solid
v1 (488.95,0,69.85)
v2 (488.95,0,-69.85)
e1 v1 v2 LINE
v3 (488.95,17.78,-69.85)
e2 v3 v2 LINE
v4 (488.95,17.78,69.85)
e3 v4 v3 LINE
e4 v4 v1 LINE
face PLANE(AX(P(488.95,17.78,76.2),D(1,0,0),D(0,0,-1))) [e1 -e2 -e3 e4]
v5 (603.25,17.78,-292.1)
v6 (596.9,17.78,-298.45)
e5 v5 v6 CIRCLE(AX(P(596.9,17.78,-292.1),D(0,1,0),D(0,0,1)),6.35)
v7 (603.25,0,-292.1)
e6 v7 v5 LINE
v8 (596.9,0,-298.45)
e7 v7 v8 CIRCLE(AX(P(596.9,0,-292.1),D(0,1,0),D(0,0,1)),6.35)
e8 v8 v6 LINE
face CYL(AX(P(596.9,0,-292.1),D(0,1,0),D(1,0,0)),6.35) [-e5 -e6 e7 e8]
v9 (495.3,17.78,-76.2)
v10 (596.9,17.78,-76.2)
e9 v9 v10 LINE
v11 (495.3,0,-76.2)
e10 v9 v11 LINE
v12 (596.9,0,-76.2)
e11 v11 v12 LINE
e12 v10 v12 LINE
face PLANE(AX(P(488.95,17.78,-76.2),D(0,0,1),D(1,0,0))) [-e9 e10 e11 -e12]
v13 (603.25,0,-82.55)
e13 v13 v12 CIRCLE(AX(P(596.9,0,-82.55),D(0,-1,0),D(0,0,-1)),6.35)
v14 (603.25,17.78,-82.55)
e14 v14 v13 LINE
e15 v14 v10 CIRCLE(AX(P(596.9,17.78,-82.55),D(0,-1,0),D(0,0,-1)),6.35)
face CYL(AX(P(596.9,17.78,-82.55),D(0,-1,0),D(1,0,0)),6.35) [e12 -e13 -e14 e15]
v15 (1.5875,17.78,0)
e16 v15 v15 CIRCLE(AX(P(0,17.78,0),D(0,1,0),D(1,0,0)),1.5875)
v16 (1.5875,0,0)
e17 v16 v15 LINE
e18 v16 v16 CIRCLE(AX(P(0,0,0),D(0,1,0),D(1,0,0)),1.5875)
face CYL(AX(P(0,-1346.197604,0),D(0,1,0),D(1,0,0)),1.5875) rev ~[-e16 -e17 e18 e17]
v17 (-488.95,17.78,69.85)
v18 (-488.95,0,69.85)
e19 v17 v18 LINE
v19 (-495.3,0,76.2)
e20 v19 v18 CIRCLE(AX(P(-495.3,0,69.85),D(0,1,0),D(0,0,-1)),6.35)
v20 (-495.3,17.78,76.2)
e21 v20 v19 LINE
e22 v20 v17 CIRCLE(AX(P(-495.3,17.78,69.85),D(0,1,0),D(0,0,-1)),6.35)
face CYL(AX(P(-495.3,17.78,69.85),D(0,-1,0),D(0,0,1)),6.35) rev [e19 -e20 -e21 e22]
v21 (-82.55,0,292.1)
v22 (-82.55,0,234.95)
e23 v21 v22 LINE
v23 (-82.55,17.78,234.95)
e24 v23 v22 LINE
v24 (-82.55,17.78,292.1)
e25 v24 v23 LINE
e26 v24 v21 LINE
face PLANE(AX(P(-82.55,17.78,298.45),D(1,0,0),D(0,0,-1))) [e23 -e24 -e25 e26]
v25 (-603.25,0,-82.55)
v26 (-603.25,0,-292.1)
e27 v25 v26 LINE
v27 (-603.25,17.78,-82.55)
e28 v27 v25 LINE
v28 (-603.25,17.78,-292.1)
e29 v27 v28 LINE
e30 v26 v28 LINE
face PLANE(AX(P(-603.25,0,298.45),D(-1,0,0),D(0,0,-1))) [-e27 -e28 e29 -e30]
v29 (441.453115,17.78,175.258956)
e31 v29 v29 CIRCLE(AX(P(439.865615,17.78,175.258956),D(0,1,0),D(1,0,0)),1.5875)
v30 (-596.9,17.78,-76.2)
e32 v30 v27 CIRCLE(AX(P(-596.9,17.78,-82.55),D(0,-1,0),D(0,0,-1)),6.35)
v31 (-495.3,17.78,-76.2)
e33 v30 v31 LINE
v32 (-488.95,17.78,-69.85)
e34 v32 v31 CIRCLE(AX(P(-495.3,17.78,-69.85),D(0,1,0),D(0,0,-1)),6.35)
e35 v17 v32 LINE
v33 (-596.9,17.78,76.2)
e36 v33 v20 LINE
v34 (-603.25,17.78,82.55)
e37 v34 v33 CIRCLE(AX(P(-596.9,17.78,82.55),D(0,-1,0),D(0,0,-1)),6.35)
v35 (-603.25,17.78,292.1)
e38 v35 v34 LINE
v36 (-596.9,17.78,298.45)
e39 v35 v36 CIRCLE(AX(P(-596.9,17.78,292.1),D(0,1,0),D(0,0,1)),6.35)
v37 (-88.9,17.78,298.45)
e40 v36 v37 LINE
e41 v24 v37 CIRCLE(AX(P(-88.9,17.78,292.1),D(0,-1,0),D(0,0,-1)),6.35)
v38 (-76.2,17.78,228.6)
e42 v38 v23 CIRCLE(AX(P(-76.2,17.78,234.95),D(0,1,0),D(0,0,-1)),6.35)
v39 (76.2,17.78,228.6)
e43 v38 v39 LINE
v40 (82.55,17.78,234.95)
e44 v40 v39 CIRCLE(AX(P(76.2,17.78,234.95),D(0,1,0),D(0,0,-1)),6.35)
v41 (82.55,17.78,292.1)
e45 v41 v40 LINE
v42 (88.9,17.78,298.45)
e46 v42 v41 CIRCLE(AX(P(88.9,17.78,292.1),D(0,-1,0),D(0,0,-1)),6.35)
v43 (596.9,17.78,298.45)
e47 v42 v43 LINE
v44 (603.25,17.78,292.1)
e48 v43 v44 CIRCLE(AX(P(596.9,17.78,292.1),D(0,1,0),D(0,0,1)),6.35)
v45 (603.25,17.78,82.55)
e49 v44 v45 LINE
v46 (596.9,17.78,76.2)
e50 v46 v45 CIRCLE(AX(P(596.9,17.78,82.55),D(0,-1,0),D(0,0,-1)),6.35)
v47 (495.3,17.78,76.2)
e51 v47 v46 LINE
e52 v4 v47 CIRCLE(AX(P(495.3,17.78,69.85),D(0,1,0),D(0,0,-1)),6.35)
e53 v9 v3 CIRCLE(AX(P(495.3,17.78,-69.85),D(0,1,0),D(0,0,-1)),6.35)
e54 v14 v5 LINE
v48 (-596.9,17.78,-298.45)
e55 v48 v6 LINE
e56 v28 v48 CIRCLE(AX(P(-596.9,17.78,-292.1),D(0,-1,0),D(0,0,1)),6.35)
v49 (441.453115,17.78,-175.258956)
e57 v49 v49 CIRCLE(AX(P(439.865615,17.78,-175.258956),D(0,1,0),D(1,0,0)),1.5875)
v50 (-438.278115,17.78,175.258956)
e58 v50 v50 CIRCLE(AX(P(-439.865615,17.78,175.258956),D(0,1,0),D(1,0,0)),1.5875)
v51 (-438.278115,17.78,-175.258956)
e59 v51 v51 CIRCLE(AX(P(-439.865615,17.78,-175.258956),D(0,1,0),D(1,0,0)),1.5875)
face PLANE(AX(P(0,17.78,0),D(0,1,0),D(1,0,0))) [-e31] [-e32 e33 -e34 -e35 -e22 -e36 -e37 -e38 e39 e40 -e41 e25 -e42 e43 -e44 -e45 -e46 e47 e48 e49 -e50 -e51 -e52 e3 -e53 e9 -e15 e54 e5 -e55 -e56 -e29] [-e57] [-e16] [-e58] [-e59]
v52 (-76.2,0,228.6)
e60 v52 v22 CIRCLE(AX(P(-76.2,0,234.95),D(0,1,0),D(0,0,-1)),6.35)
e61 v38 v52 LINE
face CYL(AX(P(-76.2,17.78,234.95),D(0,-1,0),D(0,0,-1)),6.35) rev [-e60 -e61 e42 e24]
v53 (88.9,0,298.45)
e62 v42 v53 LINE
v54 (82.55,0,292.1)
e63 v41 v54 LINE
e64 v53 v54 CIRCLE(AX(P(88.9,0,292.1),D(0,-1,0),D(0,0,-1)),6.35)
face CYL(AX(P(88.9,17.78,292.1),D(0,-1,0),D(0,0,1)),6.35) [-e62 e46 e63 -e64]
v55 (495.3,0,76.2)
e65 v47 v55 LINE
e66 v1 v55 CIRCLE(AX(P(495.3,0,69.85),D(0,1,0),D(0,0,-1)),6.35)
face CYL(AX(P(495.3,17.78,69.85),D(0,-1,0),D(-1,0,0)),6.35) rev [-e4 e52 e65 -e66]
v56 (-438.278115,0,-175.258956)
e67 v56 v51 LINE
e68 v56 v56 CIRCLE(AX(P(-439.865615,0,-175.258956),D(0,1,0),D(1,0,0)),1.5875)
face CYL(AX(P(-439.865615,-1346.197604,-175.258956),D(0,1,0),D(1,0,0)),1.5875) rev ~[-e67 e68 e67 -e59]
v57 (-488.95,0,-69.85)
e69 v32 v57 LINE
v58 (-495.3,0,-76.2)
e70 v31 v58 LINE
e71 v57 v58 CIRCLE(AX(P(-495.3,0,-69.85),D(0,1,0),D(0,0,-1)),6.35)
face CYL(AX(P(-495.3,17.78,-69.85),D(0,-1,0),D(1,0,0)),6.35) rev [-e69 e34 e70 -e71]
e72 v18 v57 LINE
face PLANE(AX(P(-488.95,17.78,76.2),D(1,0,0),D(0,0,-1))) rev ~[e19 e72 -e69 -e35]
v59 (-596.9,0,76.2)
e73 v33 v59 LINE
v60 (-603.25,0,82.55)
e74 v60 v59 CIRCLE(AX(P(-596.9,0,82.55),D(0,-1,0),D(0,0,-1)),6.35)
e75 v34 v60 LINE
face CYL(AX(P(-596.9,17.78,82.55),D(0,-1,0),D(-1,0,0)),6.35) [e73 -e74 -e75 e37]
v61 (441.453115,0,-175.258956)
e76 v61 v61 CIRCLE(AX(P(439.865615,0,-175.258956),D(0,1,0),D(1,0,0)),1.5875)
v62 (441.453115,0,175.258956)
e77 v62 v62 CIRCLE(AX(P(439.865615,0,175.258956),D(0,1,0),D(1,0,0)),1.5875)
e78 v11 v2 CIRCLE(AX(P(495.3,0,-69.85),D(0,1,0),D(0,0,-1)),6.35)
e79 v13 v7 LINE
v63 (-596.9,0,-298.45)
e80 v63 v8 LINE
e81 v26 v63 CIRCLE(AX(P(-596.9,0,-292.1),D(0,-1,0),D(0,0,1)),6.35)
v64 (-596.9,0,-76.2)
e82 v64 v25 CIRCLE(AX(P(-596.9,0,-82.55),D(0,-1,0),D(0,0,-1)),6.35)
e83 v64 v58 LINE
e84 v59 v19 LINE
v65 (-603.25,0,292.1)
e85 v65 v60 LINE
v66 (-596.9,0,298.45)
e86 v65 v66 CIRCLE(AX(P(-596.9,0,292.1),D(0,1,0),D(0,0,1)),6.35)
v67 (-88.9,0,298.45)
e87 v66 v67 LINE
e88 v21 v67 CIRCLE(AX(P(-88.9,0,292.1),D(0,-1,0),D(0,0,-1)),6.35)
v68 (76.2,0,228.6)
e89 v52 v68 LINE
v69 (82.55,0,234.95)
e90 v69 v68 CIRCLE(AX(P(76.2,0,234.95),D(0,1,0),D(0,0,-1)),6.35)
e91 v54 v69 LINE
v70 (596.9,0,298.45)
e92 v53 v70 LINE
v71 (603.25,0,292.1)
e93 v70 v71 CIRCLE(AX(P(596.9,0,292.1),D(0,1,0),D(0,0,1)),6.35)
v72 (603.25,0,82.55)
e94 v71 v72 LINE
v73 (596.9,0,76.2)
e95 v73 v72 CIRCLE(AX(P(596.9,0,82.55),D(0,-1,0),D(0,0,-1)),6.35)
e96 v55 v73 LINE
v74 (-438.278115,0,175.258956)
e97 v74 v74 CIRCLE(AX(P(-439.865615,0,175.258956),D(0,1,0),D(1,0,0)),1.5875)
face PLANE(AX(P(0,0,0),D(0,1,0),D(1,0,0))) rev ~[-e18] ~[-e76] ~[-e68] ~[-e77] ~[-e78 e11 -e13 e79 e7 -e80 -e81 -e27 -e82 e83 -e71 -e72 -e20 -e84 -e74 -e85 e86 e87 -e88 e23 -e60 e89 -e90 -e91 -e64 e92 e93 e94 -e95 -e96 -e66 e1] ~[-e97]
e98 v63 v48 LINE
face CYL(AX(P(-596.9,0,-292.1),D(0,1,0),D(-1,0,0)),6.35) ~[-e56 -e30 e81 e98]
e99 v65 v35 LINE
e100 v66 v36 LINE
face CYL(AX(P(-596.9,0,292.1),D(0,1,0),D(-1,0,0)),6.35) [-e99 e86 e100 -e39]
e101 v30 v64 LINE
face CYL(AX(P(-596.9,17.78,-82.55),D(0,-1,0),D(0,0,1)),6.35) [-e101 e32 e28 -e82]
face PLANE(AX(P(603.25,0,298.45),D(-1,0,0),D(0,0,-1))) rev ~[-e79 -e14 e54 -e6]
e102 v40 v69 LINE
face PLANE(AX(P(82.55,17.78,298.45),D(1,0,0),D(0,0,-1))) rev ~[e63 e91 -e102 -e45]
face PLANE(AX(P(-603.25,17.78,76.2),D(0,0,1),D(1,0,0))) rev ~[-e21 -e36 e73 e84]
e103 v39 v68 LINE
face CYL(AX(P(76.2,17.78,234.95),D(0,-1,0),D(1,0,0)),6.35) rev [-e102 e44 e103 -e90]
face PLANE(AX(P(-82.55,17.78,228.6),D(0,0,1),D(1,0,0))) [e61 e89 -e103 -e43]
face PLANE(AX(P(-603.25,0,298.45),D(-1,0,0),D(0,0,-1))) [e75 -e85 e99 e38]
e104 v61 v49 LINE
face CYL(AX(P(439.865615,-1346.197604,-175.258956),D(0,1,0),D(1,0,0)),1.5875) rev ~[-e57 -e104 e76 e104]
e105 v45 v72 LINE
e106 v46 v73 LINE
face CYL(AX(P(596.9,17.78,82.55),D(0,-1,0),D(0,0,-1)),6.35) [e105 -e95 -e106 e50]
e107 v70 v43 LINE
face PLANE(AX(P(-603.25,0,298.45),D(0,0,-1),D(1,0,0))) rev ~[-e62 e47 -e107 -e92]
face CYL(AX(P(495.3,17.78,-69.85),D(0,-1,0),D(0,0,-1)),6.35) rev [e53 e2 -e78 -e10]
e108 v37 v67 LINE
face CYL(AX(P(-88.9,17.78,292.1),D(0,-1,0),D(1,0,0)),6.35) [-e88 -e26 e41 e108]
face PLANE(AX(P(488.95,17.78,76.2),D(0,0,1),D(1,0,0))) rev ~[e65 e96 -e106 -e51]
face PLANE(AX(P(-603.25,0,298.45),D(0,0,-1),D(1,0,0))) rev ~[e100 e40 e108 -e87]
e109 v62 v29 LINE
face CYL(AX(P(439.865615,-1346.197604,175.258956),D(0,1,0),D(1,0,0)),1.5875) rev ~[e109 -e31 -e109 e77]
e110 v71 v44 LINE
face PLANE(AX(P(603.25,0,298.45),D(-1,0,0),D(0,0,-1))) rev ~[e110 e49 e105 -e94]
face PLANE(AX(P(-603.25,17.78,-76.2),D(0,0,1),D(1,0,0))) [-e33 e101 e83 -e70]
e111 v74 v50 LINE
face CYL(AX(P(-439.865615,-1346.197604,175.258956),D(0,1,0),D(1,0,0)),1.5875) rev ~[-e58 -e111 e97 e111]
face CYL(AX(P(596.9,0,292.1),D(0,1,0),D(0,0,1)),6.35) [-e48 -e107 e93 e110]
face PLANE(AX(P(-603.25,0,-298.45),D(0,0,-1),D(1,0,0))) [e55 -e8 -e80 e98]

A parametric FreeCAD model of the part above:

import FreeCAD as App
import Part
import Sketcher
Q = App.Units.Quantity


def edges_at(feature, points):
    """Names of the edges that pass closest to the given points."""
    edges = feature.Shape.Edges
    near = lambda p: min(range(len(edges)), key=lambda i: edges[i].distToShape(Part.Vertex(*p))[0])
    return sorted({f"Edge{near(p) + 1}" for p in points})

doc = App.newDocument("Part")
body = doc.addObject("PartDesign::Body", "Body")

# Sketch on XZ plane
sketch1 = body.newObject("Sketcher::SketchObject", "Sketch")
sketch1.AttachmentSupport = (doc.getObject("XZ_Plane"), [""])
sketch1.MapMode = "FlatFace"
sketch1.addGeometry(Part.LineSegment(App.Vector(-603, -298, 0), App.Vector(-603, 298, 0)), False)
sketch1.addGeometry(Part.LineSegment(App.Vector(-603, 298, 0), App.Vector(603, 298, 0)), False)
sketch1.addGeometry(Part.LineSegment(App.Vector(603, 298, 0), App.Vector(603, -298, 0)), False)
sketch1.addGeometry(Part.LineSegment(App.Vector(603, -298, 0), App.Vector(-603, -298, 0)), False)
sketch1.addConstraint(Sketcher.Constraint("Coincident", 0, 2, 1, 1))
sketch1.addConstraint(Sketcher.Constraint("Coincident", 1, 2, 2, 1))
sketch1.addConstraint(Sketcher.Constraint("Coincident", 2, 2, 3, 1))
sketch1.addConstraint(Sketcher.Constraint("Coincident", 3, 2, 0, 1))
sketch1.addConstraint(Sketcher.Constraint("Vertical", 0))
sketch1.addConstraint(Sketcher.Constraint("Horizontal", 1))
sketch1.addConstraint(Sketcher.Constraint("Vertical", 2))
sketch1.addConstraint(Sketcher.Constraint("Horizontal", 3))
sketch1.addConstraint(Sketcher.Constraint("Symmetric", 0, 2, 2, 2, -1, 1))
sketch1.addConstraint(Sketcher.Constraint("DistanceX", 1, 1, 1, 2, Q("47.5 in")))
sketch1.addConstraint(Sketcher.Constraint("DistanceY", 0, 1, 0, 2, Q("23.5 in")))
pad1 = body.newObject("PartDesign::Pad", "Pad")
pad1.Profile = sketch1
pad1.Length = Q("0.7 in")
pad1.Reversed = True
doc.recompute()

fillet = body.newObject("PartDesign::Fillet", "Fillet")
fillet.Base = (pad1, edges_at(pad1, [
    (603.25, 8.89, 298.45),
    (-603.25, 8.89, 298.45),
    (-603.25, 8.89, -298.45),
    (603.25, 8.89, -298.45),
]))
fillet.Radius = Q("0.25 in")

# Sketch on XZ plane
sketch2 = body.newObject("Sketcher::SketchObject", "Sketch001")
sketch2.AttachmentSupport = (doc.getObject("XZ_Plane"), [""])
sketch2.MapMode = "FlatFace"
sketch2.AttachmentOffset = App.Placement(App.Vector(0, 0, -0.7 * 25.4), App.Rotation())
sketch2.addGeometry(Part.LineSegment(App.Vector(-83, 229, 0), App.Vector(-83, 298, 0)), False)
sketch2.addGeometry(Part.LineSegment(App.Vector(-83, 298, 0), App.Vector(83, 298, 0)), False)
sketch2.addGeometry(Part.LineSegment(App.Vector(83, 298, 0), App.Vector(83, 229, 0)), False)
sketch2.addGeometry(Part.LineSegment(App.Vector(83, 229, 0), App.Vector(-83, 229, 0)), False)
sketch2.addGeometry(Part.LineSegment(App.Vector(-603, -76, 0), App.Vector(-603, 76, 0)), False)
sketch2.addGeometry(Part.LineSegment(App.Vector(-603, 76, 0), App.Vector(-489, 76, 0)), False)
sketch2.addGeometry(Part.LineSegment(App.Vector(-489, 76, 0), App.Vector(-489, -76, 0)), False)
sketch2.addGeometry(Part.LineSegment(App.Vector(-489, -76, 0), App.Vector(-603, -76, 0)), False)
sketch2.addGeometry(Part.LineSegment(App.Vector(489, -76, 0), App.Vector(489, 76, 0)), False)
sketch2.addGeometry(Part.LineSegment(App.Vector(489, 76, 0), App.Vector(603, 76, 0)), False)
sketch2.addGeometry(Part.LineSegment(App.Vector(603, 76, 0), App.Vector(603, -76, 0)), False)
sketch2.addGeometry(Part.LineSegment(App.Vector(603, -76, 0), App.Vector(489, -76, 0)), False)
sketch2.addConstraint(Sketcher.Constraint("Coincident", 0, 2, 1, 1))
sketch2.addConstraint(Sketcher.Constraint("Coincident", 1, 2, 2, 1))
sketch2.addConstraint(Sketcher.Constraint("Coincident", 2, 2, 3, 1))
sketch2.addConstraint(Sketcher.Constraint("Coincident", 3, 2, 0, 1))
sketch2.addConstraint(Sketcher.Constraint("Coincident", 4, 2, 5, 1))
sketch2.addConstraint(Sketcher.Constraint("Coincident", 5, 2, 6, 1))
sketch2.addConstraint(Sketcher.Constraint("Coincident", 6, 2, 7, 1))
sketch2.addConstraint(Sketcher.Constraint("Coincident", 7, 2, 4, 1))
sketch2.addConstraint(Sketcher.Constraint("Coincident", 8, 2, 9, 1))
sketch2.addConstraint(Sketcher.Constraint("Coincident", 9, 2, 10, 1))
sketch2.addConstraint(Sketcher.Constraint("Coincident", 10, 2, 11, 1))
sketch2.addConstraint(Sketcher.Constraint("Coincident", 11, 2, 8, 1))
sketch2.addConstraint(Sketcher.Constraint("Vertical", 0))
sketch2.addConstraint(Sketcher.Constraint("Horizontal", 1))
sketch2.addConstraint(Sketcher.Constraint("Vertical", 2))
sketch2.addConstraint(Sketcher.Constraint("Horizontal", 3))
sketch2.addConstraint(Sketcher.Constraint("Vertical", 4))
sketch2.addConstraint(Sketcher.Constraint("Horizontal", 5))
sketch2.addConstraint(Sketcher.Constraint("Vertical", 6))
sketch2.addConstraint(Sketcher.Constraint("Horizontal", 7))
sketch2.addConstraint(Sketcher.Constraint("Vertical", 8))
sketch2.addConstraint(Sketcher.Constraint("Horizontal", 9))
sketch2.addConstraint(Sketcher.Constraint("Vertical", 10))
sketch2.addConstraint(Sketcher.Constraint("Horizontal", 11))
sketch2.addConstraint(Sketcher.Constraint("Symmetric", 6, 2, 8, 2, -1, 1))
sketch2.addConstraint(Sketcher.Constraint("Symmetric", 4, 2, 10, 2, -1, 1))
sketch2.addConstraint(Sketcher.Constraint("Horizontal", 5, 2, 8, 2))
sketch2.addConstraint(Sketcher.Constraint("DistanceY", 4, 1, 4, 2, Q("6 in")))
sketch2.addConstraint(Sketcher.Constraint("DistanceX", 1, 1, 1, 2, Q("6.5 in")))
sketch2.addConstraint(Sketcher.Constraint("DistanceX", 5, 1, 5, 2, Q("4.5 in")))
sketch2.addConstraint(Sketcher.Constraint("DistanceY", -1, 1, 2, 2, Q("9 in")))
sketch2.addConstraint(Sketcher.Constraint("DistanceX", 4, 2, 2, 2, Q("27 in")))
sketch2.addConstraint(Sketcher.Constraint("DistanceX", 2, 2, 8, 2, Q("16 in")))
sketch2.addConstraint(Sketcher.Constraint("DistanceY", 0, 1, 0, 2, Q("2.75 in")))
pocket1 = body.newObject("PartDesign::Pocket", "Pocket")
pocket1.Profile = sketch2
pocket1.Type = "ThroughAll"
pocket1.Reversed = True
doc.recompute()

fillet2 = body.newObject("PartDesign::Fillet", "Fillet001")
fillet2.Base = (pocket1, edges_at(pocket1, [
    (82.55, 8.89, 228.6),
    (82.55, 8.89, 298.45),
    (-82.55, 8.89, 298.45),
    (-82.55, 8.89, 228.6),
    (-603.25, 8.89, 76.2),
    (-603.25, 8.89, -76.2),
    (-488.95, 8.89, -76.2),
    (-488.95, 8.89, 76.2),
    (603.25, 8.89, -76.2),
    (603.25, 8.89, 76.2),
    (488.95, 8.89, 76.2),
    (488.95, 8.89, -76.2),
]))
fillet2.Radius = Q("0.25 in")

# Sketch on XZ plane
sketch3 = body.newObject("Sketcher::SketchObject", "Sketch002")
sketch3.AttachmentSupport = (doc.getObject("XZ_Plane"), [""])
sketch3.MapMode = "FlatFace"
sketch3.addGeometry(Part.Circle(App.Vector(439.9, -175.3, 0), App.Vector(0, 0, 1), 1.6), False)
sketch3.addGeometry(Part.Circle(App.Vector(-439.9, -175.3, 0), App.Vector(0, 0, 1), 1.6), False)
sketch3.addGeometry(Part.Circle(App.Vector(-439.9, 175.3, 0), App.Vector(0, 0, 1), 1.6), False)
sketch3.addGeometry(Part.Circle(App.Vector(0, 0, 0), App.Vector(0, 0, 1), 1.6), False)
sketch3.addGeometry(Part.Circle(App.Vector(439.9, 175.3, 0), App.Vector(0, 0, 1), 1.6), False)
sketch3.addConstraint(Sketcher.Constraint("Coincident", 3, 3, -1, 1))
sketch3.addConstraint(Sketcher.Constraint("Equal", 0, 1))
sketch3.addConstraint(Sketcher.Constraint("Equal", 1, 2))
sketch3.addConstraint(Sketcher.Constraint("Equal", 2, 3))
sketch3.addConstraint(Sketcher.Constraint("Equal", 3, 4))
sketch3.addConstraint(Sketcher.Constraint("Symmetric", 0, 3, 2, 3, -1, 1))
sketch3.addConstraint(Sketcher.Constraint("Symmetric", 1, 3, 4, 3, -1, 1))
sketch3.addConstraint(Sketcher.Constraint("Symmetric", 0, 3, 1, 3, -2))
sketch3.addConstraint(Sketcher.Constraint("Diameter", 0, Q("0.125 in")))
sketch3.addConstraint(Sketcher.Constraint("DistanceX", 1, 3, 0, 3, 879.731231))
sketch3.addConstraint(Sketcher.Constraint("DistanceY", 0, 3, -1, 1, 175.258956))
doc.recompute()
hole = body.newObject("PartDesign::Hole", "Hole")
hole.Profile = sketch3
hole.ThreadType = "None"
hole.Diameter = Q("0.125 in")
hole.DepthType = "ThroughAll"

doc.recompute()
